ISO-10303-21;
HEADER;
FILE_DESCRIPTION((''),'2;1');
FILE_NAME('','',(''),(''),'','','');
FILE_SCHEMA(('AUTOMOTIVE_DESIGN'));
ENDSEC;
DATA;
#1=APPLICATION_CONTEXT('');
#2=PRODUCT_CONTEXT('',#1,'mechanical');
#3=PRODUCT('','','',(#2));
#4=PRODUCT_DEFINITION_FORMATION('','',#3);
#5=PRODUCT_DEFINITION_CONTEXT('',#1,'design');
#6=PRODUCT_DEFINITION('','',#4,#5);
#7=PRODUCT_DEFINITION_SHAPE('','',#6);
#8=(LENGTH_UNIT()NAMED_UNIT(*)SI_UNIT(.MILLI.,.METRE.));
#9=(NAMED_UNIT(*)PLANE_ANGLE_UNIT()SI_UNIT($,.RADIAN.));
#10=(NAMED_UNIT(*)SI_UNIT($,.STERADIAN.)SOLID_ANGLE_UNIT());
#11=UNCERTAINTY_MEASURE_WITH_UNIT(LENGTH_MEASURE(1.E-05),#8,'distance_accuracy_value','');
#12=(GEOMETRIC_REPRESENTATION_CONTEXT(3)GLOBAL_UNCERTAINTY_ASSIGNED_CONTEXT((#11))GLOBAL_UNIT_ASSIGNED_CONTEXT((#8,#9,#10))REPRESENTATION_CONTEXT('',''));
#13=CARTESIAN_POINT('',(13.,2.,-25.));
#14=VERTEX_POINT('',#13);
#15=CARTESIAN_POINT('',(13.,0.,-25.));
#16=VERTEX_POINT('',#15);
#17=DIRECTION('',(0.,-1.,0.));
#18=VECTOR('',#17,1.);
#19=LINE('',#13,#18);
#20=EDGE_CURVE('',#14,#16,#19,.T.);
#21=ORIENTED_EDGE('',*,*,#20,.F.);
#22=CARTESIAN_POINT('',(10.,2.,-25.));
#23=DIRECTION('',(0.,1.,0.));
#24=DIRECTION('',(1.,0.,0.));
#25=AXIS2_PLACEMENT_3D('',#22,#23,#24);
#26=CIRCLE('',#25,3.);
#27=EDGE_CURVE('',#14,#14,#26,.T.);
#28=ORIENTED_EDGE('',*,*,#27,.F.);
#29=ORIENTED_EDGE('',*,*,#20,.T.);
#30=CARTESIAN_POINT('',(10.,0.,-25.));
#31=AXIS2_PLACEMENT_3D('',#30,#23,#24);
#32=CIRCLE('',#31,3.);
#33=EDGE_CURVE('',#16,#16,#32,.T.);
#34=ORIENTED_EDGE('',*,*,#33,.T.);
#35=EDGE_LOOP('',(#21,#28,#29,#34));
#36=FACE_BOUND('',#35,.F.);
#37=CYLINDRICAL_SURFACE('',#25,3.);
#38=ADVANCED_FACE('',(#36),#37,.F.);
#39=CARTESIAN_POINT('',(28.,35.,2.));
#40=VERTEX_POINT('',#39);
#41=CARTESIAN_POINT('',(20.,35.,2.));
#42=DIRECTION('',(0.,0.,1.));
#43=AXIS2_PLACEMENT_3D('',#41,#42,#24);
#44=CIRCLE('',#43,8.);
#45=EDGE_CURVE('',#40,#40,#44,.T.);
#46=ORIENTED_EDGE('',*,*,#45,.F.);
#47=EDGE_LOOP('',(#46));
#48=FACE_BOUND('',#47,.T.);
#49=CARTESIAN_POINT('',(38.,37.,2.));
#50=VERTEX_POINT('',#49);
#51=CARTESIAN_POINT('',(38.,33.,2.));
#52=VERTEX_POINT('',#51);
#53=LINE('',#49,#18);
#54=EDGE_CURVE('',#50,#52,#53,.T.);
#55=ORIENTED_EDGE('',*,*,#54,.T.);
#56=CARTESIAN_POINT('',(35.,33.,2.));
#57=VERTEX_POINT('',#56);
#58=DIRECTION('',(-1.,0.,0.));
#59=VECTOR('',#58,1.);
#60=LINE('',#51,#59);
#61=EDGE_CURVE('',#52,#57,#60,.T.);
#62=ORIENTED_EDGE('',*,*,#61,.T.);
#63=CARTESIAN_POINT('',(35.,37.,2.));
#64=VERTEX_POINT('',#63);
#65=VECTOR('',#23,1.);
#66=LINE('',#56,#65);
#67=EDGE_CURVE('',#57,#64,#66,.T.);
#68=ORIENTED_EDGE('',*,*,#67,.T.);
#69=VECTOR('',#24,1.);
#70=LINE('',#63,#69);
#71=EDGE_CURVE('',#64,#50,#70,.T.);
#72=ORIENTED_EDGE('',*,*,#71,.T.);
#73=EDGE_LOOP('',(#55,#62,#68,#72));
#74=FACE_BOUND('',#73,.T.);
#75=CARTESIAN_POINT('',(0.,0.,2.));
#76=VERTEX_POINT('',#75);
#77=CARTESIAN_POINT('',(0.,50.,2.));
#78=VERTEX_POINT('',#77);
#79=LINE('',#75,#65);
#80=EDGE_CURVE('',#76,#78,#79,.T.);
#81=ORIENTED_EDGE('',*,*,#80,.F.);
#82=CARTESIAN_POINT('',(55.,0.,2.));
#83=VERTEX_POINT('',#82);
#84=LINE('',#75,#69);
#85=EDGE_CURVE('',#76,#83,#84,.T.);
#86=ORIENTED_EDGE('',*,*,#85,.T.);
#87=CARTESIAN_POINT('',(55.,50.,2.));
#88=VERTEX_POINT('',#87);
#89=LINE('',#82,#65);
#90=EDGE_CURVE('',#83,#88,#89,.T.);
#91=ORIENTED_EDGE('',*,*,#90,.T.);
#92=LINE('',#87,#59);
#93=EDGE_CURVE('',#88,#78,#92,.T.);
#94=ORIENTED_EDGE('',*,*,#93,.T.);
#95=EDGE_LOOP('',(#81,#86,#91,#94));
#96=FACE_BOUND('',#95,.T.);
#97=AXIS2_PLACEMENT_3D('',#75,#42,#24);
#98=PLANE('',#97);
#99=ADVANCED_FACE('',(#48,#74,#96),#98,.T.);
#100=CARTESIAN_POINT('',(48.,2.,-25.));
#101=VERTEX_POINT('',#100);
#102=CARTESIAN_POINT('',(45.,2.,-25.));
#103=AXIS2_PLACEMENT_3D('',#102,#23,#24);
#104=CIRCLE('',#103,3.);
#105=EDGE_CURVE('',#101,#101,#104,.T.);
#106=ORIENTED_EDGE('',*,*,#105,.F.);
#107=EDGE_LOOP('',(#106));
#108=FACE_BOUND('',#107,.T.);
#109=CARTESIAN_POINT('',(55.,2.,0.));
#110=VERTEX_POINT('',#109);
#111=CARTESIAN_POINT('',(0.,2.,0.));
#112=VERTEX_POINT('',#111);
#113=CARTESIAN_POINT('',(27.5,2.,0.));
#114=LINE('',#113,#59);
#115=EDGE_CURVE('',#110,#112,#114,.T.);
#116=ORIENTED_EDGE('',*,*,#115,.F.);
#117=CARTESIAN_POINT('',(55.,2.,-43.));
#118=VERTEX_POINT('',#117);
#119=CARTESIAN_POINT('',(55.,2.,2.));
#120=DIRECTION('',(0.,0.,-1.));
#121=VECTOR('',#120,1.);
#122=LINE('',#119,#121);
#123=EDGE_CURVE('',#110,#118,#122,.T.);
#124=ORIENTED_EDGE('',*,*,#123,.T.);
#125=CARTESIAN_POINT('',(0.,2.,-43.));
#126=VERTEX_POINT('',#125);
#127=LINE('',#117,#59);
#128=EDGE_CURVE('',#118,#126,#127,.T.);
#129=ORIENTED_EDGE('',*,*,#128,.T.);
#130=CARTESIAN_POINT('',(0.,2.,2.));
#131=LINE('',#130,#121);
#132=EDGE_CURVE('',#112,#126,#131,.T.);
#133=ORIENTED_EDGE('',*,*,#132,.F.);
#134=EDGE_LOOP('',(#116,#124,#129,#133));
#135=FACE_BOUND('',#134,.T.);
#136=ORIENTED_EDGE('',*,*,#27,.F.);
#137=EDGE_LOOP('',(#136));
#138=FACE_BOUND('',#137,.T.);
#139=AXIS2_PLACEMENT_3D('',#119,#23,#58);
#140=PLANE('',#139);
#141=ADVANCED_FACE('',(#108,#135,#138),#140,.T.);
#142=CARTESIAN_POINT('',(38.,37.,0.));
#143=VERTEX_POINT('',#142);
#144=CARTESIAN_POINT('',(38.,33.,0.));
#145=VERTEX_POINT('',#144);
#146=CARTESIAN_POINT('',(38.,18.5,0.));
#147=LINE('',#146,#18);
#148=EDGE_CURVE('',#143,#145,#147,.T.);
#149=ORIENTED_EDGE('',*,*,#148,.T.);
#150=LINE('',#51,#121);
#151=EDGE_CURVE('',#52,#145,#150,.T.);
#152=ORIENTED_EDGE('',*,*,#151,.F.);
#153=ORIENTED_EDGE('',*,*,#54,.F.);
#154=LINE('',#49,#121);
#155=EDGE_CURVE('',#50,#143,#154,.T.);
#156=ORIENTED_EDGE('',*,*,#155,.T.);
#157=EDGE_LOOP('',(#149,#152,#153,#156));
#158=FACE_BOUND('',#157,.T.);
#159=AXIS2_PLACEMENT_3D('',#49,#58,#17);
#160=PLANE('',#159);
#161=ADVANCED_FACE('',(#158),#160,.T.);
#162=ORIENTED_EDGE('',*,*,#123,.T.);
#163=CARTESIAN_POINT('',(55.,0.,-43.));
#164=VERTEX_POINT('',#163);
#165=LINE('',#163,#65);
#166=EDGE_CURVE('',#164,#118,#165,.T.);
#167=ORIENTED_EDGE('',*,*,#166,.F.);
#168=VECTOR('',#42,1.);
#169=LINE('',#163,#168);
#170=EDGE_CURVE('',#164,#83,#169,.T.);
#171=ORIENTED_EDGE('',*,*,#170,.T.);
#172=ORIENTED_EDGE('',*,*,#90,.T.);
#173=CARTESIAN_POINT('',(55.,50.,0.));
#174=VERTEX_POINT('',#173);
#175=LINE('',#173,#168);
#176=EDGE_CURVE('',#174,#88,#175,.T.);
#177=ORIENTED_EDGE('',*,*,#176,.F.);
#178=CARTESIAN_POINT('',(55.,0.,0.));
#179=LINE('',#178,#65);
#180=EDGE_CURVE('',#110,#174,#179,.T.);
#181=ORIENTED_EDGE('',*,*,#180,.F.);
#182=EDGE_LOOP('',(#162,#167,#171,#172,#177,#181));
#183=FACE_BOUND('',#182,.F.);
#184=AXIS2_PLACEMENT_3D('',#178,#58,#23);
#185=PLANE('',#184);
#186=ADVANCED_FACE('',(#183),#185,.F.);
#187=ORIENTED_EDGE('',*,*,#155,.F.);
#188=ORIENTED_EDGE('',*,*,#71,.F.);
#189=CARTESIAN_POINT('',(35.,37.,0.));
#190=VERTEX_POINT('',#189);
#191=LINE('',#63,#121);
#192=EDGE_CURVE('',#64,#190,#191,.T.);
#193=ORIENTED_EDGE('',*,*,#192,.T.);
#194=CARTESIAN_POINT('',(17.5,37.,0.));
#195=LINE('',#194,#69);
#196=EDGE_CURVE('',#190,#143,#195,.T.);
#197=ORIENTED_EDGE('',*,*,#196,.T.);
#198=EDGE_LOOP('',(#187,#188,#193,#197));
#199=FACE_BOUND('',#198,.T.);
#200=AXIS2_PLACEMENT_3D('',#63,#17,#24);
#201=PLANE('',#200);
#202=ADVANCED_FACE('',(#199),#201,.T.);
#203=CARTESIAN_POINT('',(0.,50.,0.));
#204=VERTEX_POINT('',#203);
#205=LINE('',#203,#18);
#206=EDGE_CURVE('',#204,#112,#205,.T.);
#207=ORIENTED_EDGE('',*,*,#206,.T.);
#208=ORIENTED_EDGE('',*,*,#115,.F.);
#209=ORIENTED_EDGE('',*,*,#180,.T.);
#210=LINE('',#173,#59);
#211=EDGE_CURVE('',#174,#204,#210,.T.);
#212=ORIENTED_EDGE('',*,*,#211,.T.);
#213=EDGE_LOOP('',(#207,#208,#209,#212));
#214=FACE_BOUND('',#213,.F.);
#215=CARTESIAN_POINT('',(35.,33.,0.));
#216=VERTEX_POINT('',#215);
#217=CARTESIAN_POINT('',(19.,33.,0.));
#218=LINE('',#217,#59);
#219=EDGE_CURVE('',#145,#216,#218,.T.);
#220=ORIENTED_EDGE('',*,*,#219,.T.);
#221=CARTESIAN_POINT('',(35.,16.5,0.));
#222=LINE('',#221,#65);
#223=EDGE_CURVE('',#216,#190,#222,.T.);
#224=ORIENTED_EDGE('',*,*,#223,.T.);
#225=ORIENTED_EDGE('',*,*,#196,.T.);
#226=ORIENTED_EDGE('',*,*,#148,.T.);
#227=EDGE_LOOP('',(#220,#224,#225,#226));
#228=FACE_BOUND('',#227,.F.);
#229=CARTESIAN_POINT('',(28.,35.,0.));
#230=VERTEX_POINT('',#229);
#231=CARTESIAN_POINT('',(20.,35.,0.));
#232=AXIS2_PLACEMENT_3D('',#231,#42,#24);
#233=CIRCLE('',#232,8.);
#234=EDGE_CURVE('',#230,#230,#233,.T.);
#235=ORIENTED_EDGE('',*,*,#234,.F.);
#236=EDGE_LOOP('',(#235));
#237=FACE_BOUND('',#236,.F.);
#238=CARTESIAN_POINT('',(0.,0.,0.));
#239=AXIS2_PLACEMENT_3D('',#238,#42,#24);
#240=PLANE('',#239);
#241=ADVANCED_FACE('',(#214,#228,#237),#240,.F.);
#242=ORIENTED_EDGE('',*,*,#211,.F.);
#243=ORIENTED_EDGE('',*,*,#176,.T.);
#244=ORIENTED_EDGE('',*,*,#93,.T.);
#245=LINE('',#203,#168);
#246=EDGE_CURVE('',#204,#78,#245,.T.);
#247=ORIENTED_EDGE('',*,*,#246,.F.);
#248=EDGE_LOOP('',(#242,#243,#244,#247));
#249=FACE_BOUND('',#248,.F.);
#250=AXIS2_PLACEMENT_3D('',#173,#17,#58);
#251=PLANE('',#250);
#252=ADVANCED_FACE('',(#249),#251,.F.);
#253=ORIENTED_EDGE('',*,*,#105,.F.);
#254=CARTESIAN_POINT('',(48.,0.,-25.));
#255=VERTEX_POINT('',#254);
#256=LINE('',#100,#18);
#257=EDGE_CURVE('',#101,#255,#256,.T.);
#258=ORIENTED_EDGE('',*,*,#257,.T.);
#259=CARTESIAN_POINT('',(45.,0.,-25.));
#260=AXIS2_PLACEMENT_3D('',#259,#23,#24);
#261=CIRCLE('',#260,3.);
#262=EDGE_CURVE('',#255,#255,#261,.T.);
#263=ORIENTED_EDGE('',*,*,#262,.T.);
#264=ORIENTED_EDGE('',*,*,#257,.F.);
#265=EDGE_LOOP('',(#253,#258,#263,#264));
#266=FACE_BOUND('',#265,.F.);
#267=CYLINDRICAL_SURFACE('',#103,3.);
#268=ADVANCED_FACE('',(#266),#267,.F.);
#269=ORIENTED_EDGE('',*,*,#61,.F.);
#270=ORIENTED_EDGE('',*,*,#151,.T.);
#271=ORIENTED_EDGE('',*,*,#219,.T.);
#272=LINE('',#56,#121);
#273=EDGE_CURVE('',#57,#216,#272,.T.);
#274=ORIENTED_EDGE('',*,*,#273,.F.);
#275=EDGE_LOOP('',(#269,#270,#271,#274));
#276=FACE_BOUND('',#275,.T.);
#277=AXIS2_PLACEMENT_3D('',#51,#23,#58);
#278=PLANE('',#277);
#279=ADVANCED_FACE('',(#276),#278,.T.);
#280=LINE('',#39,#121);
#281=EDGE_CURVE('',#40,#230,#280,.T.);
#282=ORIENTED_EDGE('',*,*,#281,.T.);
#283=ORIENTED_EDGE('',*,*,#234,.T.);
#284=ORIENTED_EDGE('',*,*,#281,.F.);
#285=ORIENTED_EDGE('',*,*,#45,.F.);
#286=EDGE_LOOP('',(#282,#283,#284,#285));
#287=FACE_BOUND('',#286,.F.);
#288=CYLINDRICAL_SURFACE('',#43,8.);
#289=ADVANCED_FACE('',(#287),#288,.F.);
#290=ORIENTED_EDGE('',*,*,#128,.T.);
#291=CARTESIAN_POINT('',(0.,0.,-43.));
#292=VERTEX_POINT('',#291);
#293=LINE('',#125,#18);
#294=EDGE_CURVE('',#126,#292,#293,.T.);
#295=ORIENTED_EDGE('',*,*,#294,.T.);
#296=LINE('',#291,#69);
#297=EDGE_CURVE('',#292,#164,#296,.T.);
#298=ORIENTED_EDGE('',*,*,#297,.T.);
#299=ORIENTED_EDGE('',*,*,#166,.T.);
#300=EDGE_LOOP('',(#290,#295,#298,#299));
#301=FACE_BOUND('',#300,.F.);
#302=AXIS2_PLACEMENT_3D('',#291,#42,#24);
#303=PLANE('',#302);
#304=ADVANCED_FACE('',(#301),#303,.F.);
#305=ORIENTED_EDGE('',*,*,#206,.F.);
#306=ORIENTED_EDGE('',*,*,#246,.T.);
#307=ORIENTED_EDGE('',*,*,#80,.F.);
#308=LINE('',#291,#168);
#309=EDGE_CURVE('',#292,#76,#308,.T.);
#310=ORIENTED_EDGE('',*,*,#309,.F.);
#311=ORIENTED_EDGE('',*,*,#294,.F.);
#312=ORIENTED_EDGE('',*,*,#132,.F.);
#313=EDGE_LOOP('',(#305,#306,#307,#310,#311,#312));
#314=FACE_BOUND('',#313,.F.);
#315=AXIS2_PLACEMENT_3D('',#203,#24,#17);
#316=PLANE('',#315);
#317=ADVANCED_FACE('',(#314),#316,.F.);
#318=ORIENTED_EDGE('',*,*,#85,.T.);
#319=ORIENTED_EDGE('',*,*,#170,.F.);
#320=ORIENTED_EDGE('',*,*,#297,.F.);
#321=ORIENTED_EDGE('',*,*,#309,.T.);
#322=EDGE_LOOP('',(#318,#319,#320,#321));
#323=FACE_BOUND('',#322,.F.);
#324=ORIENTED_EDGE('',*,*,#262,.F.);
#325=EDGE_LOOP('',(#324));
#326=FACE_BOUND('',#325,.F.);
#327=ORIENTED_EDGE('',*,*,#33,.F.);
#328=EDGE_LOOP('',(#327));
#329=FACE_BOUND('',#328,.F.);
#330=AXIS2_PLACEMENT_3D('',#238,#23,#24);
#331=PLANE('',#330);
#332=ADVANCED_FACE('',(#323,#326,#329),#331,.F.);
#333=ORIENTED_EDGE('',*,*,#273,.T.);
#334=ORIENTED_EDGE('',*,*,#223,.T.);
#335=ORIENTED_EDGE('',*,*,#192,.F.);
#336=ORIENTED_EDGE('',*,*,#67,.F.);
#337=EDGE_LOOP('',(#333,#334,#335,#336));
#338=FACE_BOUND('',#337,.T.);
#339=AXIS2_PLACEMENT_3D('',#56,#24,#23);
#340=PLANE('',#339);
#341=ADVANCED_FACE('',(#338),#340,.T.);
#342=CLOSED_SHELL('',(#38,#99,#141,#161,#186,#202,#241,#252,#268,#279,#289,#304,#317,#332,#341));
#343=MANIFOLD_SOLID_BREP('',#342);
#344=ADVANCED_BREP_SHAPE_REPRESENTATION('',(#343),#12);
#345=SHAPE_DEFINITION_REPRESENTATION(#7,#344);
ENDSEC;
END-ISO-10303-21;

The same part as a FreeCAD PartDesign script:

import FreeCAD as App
import Part
import Sketcher

V = App.Vector


def add_polygon(sketch, points):
    """Adds a closed chain of lines whose ends are joined by coincident constraints."""
    first, n = sketch.GeometryCount, len(points)
    for a, b in zip(points, points[1:] + points[:1]):
        sketch.addGeometry(Part.LineSegment(App.Vector(*a, 0), App.Vector(*b, 0)), False)
    for i in range(n):
        sketch.addConstraint(Sketcher.Constraint("Coincident", first + i, 2, first + (i + 1) % n, 1))

doc = App.newDocument("Part")
body = doc.addObject("PartDesign::Body", "Body")

sketch1 = doc.addObject("Sketcher::SketchObject", "Sketch")
body.addObject(sketch1)
sketch1.AttachmentSupport = (doc.XY_Plane, [""])
sketch1.MapMode = "FlatFace"
add_polygon(sketch1, [(0, 50), (0, 0), (55, 0), (55, 50)])
sketch1.addConstraint([
    Sketcher.Constraint("Vertical", 0),
    Sketcher.Constraint("Horizontal", 1),
    Sketcher.Constraint("Vertical", 2),
    Sketcher.Constraint("Horizontal", 3),
    Sketcher.Constraint("Coincident", 0, 2, -1, 1),
    Sketcher.Constraint("DistanceX", 1, 1, 1, 2, 55.0),
    Sketcher.Constraint("DistanceY", 0, 2, 0, 1, 50.0),
])
pad1 = doc.addObject("PartDesign::Pad", "Pad")
body.addObject(pad1)
pad1.Profile = sketch1
pad1.Length = 2

sketch2 = doc.addObject("Sketcher::SketchObject", "Sketch001")
body.addObject(sketch2)
sketch2.AttachmentSupport = (doc.XY_Plane, [""])
sketch2.MapMode = "FlatFace"
sketch2.AttachmentOffset = App.Placement(V(0, 0, 2), App.Rotation())
sketch2.addGeometry(Part.Circle(V(20, 35, 0), V(0, 0, 1), 8), False)
add_polygon(sketch2, [(38, 37), (35, 37), (35, 33), (38, 33)])
sketch2.addConstraint([
    Sketcher.Constraint("Horizontal", 1),
    Sketcher.Constraint("Vertical", 2),
    Sketcher.Constraint("Horizontal", 3),
    Sketcher.Constraint("Vertical", 4),
    Sketcher.Constraint("Diameter", 0, 16.0),
    Sketcher.Constraint("DistanceX", 1, 2, 1, 1, 3.0),
    Sketcher.Constraint("DistanceY", 2, 2, 2, 1, 4.0),
    Sketcher.Constraint("DistanceX", -1, 1, 0, 3, 20.0),
    Sketcher.Constraint("DistanceY", -1, 1, 0, 3, 35.0),
    Sketcher.Constraint("DistanceX", -1, 1, 1, 2, 35.0),
    Sketcher.Constraint("DistanceY", 0, 3, 1, 2, 2.0),
])
pocket1 = doc.addObject("PartDesign::Pocket", "Pocket")
body.addObject(pocket1)
pocket1.Profile = sketch2
pocket1.Type = "ThroughAll"

sketch3 = doc.addObject("Sketcher::SketchObject", "Sketch002")
body.addObject(sketch3)
sketch3.AttachmentSupport = (doc.XY_Plane, [""])
sketch3.MapMode = "FlatFace"
sketch3.AttachmentOffset = App.Placement(V(0, 0, 2), App.Rotation())
add_polygon(sketch3, [(55, 2), (0, 2), (0, 0), (55, 0)])
sketch3.addConstraint([
    Sketcher.Constraint("Horizontal", 0),
    Sketcher.Constraint("Vertical", 1),
    Sketcher.Constraint("Horizontal", 2),
    Sketcher.Constraint("Vertical", 3),
    Sketcher.Constraint("Coincident", 1, 2, -1, 1),
    Sketcher.Constraint("DistanceX", 0, 2, 0, 1, 55.0),
    Sketcher.Constraint("DistanceY", 1, 2, 1, 1, 2.0),
])
pad2 = doc.addObject("PartDesign::Pad", "Pad001")
body.addObject(pad2)
pad2.Profile = sketch3
pad2.Length = 45
pad2.Reversed = True

sketch4 = doc.addObject("Sketcher::SketchObject", "Sketch003")
body.addObject(sketch4)
sketch4.AttachmentSupport = (doc.XZ_Plane, [""])
sketch4.MapMode = "FlatFace"
sketch4.AttachmentOffset = App.Placement(V(0, 0, -2), App.Rotation())
sketch4.addGeometry([
    Part.Circle(V(10, -25, 0), V(0, 0, 1), 3),
    Part.Circle(V(45, -25, 0), V(0, 0, 1), 3),
], False)
sketch4.addConstraint([
    Sketcher.Constraint("Equal", 0, 1),
    Sketcher.Constraint("Horizontal", 0, 3, 1, 3),
    Sketcher.Constraint("Diameter", 0, 6.0),
    Sketcher.Constraint("DistanceX", -1, 1, 0, 3, 10.0),
    Sketcher.Constraint("DistanceY", 0, 3, -1, 1, 25.0),
    Sketcher.Constraint("DistanceX", -1, 1, 1, 3, 45.0),
])
pocket2 = doc.addObject("PartDesign::Pocket", "Pocket001")
body.addObject(pocket2)
pocket2.Profile = sketch4
pocket2.Type = "ThroughAll"
pocket2.Reversed = True

doc.recompute()
